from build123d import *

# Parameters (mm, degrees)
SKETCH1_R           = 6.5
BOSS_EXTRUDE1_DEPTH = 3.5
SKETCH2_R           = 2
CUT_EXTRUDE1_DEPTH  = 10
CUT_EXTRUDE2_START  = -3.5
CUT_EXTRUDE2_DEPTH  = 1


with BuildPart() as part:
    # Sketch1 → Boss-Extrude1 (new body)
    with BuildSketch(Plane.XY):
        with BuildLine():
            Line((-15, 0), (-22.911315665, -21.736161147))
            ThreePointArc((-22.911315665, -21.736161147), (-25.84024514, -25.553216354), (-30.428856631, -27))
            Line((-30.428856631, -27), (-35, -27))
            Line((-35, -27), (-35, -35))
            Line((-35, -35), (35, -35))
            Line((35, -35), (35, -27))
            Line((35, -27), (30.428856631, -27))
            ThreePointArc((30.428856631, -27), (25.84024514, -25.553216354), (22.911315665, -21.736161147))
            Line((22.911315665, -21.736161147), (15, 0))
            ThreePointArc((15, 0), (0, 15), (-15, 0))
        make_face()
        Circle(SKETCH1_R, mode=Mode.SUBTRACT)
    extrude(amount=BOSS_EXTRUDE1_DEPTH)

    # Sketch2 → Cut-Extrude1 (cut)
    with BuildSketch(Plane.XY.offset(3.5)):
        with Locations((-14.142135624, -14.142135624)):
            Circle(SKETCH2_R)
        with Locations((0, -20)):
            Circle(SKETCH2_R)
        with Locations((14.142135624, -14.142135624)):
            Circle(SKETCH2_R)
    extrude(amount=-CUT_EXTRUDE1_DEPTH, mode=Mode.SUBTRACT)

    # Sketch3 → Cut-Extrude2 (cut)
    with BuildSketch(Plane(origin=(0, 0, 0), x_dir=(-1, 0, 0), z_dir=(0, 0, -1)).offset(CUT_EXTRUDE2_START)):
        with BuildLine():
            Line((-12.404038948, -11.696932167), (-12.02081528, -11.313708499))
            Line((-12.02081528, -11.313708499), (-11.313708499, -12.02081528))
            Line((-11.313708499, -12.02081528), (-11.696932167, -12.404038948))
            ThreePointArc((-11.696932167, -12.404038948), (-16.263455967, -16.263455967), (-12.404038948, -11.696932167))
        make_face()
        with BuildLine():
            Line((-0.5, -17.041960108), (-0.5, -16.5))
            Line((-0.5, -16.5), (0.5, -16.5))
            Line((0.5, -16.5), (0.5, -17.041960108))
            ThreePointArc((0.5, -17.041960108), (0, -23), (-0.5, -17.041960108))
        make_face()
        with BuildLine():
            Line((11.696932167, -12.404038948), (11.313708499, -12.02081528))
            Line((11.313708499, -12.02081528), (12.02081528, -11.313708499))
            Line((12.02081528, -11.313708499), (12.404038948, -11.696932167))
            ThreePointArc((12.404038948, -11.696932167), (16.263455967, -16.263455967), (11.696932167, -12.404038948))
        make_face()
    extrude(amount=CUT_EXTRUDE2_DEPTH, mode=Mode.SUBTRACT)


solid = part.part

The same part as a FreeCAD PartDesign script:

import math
import FreeCAD as App
import Part
import Sketcher
from FreeCAD import Vector
Q = App.Units.Quantity

doc = App.newDocument("Part")
body = doc.addObject("PartDesign::Body", "Body")

# Sketch on XY plane
sketch1 = doc.addObject("Sketcher::SketchObject", "Sketch")
body.addObject(sketch1)
sketch1.AttachmentSupport = (doc.XY_Plane, [""])
sketch1.MapMode = "FlatFace"
sketch1.addGeometry(Part.LineSegment(Vector(-15, 0, 0), Vector(-22.9, -21.7, 0)), False)
sketch1.addGeometry(Part.ArcOfCircle(Part.Circle(Vector(-30.4, -19, 0), Vector(0, 0, 1), 8), math.radians(-90), math.radians(-20)), False)
sketch1.addGeometry(Part.LineSegment(Vector(-30.4, -27, 0), Vector(-35, -27, 0)), False)
sketch1.addGeometry(Part.LineSegment(Vector(-35, -27, 0), Vector(-35, -35, 0)), False)
sketch1.addGeometry(Part.LineSegment(Vector(-35, -35, 0), Vector(35, -35, 0)), False)
sketch1.addGeometry(Part.LineSegment(Vector(35, -35, 0), Vector(35, -27, 0)), False)
sketch1.addGeometry(Part.LineSegment(Vector(35, -27, 0), Vector(30.4, -27, 0)), False)
sketch1.addGeometry(Part.ArcOfCircle(Part.Circle(Vector(30.4, -19, 0), Vector(0, 0, 1), 8), math.radians(-160), math.radians(-90)), False)
sketch1.addGeometry(Part.LineSegment(Vector(22.9, -21.7, 0), Vector(15, 0, 0)), False)
sketch1.addGeometry(Part.ArcOfCircle(Part.Circle(Vector(0, 0, 0), Vector(0, 0, 1), 15), math.radians(0), math.radians(180)), False)
sketch1.addGeometry(Part.Circle(Vector(0, 0, 0), Vector(0, 0, 1), 6.5), False)
sketch1.addConstraint(Sketcher.Constraint("Tangent", 0, 2, 1, 2))
sketch1.addConstraint(Sketcher.Constraint("Tangent", 1, 1, 2, 1))
sketch1.addConstraint(Sketcher.Constraint("Coincident", 2, 2, 3, 1))
sketch1.addConstraint(Sketcher.Constraint("Coincident", 3, 2, 4, 1))
sketch1.addConstraint(Sketcher.Constraint("Coincident", 4, 2, 5, 1))
sketch1.addConstraint(Sketcher.Constraint("Coincident", 5, 2, 6, 1))
sketch1.addConstraint(Sketcher.Constraint("Tangent", 6, 2, 7, 2))
sketch1.addConstraint(Sketcher.Constraint("Tangent", 7, 1, 8, 1))
sketch1.addConstraint(Sketcher.Constraint("Coincident", 8, 2, 9, 1))
sketch1.addConstraint(Sketcher.Constraint("Coincident", 9, 2, 0, 1))
sketch1.addConstraint(Sketcher.Constraint("Horizontal", 2))
sketch1.addConstraint(Sketcher.Constraint("Vertical", 3))
sketch1.addConstraint(Sketcher.Constraint("Horizontal", 4))
sketch1.addConstraint(Sketcher.Constraint("Vertical", 5))
sketch1.addConstraint(Sketcher.Constraint("Horizontal", 6))
sketch1.addConstraint(Sketcher.Constraint("Coincident", 9, 3, -1, 1))
sketch1.addConstraint(Sketcher.Constraint("Coincident", 10, 3, -1, 1))
sketch1.addConstraint(Sketcher.Constraint("Equal", 1, 7))
sketch1.addConstraint(Sketcher.Constraint("Symmetric", 1, 3, 7, 3, -2))
sketch1.addConstraint(Sketcher.Constraint("PointOnObject", 8, 2, -1))
sketch1.addConstraint(Sketcher.Constraint("PointOnObject", 9, 2, -1))
sketch1.addConstraint(Sketcher.Constraint("Equal", 2, 6))
sketch1.addConstraint(Sketcher.Constraint("Diameter", 10, Q("13 mm")))
sketch1.addConstraint(Sketcher.Constraint("Radius", 1, Q("8 mm")))
sketch1.addConstraint(Sketcher.Constraint("Radius", 9, Q("15 mm")))
sketch1.addConstraint(Sketcher.Constraint("DistanceX", 4, 1, 4, 2, Q("70 mm")))
sketch1.addConstraint(Sketcher.Constraint("DistanceY", 3, 2, 3, 1, Q("8 mm")))
sketch1.addConstraint(Sketcher.Constraint("Angle", 0, Q("-110 deg")))
sketch1.addConstraint(Sketcher.Constraint("DistanceY", 1, 3, -1, 1, Q("19 mm")))
pad1 = doc.addObject("PartDesign::Pad", "Pad")
body.addObject(pad1)
pad1.Profile = sketch1
pad1.Length = 3.5

# Sketch on XY plane
sketch2 = doc.addObject("Sketcher::SketchObject", "Sketch001")
body.addObject(sketch2)
sketch2.AttachmentSupport = (doc.XY_Plane, [""])
sketch2.MapMode = "FlatFace"
sketch2.AttachmentOffset = App.Placement(Vector(0, 0, 3.5), App.Rotation())
sketch2.addGeometry(Part.Circle(Vector(-14.1, -14.1, 0), Vector(0, 0, 1), 2), False)
sketch2.addGeometry(Part.Circle(Vector(0, -20, 0), Vector(0, 0, 1), 2), False)
sketch2.addGeometry(Part.Circle(Vector(14.1, -14.1, 0), Vector(0, 0, 1), 2), False)
sketch2.addConstraint(Sketcher.Constraint("Equal", 0, 1))
sketch2.addConstraint(Sketcher.Constraint("Equal", 1, 2))
sketch2.addConstraint(Sketcher.Constraint("Symmetric", 0, 3, 2, 3, -2))
sketch2.addConstraint(Sketcher.Constraint("PointOnObject", 1, 3, -2))
sketch2.addConstraint(Sketcher.Constraint("Diameter", 0, Q("4 mm")))
sketch2.addConstraint(Sketcher.Constraint("DistanceY", 1, 3, -1, 1, Q("20 mm")))
sketch2.addConstraint(Sketcher.Constraint("DistanceX", 0, 3, 2, 3, Q("28.284271 mm")))
sketch2.addConstraint(Sketcher.Constraint("DistanceY", 0, 3, -1, 1, Q("14.142136 mm")))
pocket1 = doc.addObject("PartDesign::Pocket", "Pocket")
body.addObject(pocket1)
pocket1.Profile = sketch2
pocket1.Length = 10

# Sketch on XY plane
sketch3 = doc.addObject("Sketcher::SketchObject", "Sketch002")
body.addObject(sketch3)
sketch3.AttachmentSupport = (doc.XY_Plane, [""])
sketch3.MapMode = "FlatFace"
sketch3.AttachmentOffset = App.Placement(Vector(0, 0, 3.5), App.Rotation())
sketch3.addGeometry(Part.LineSegment(Vector(12, -11.3, 0), Vector(12.4, -11.7, 0)), False)
sketch3.addGeometry(Part.ArcOfCircle(Part.Circle(Vector(14.1, -14.1, 0), Vector(0, 0, 1), 3), math.radians(145), math.radians(485)), False)
sketch3.addGeometry(Part.LineSegment(Vector(11.7, -12.4, 0), Vector(11.3, -12, 0)), False)
sketch3.addGeometry(Part.LineSegment(Vector(11.3, -12, 0), Vector(12, -11.3, 0)), False)
sketch3.addGeometry(Part.LineSegment(Vector(0.5, -16.5, 0), Vector(0.5, -17, 0)), False)
sketch3.addGeometry(Part.ArcOfCircle(Part.Circle(Vector(0, -20, 0), Vector(0, 0, 1), 3), math.radians(100), math.radians(440)), False)
sketch3.addGeometry(Part.LineSegment(Vector(-0.5, -17, 0), Vector(-0.5, -16.5, 0)), False)
sketch3.addGeometry(Part.LineSegment(Vector(-0.5, -16.5, 0), Vector(0.5, -16.5, 0)), False)
sketch3.addGeometry(Part.LineSegment(Vector(-11.3, -12, 0), Vector(-11.7, -12.4, 0)), False)
sketch3.addGeometry(Part.ArcOfCircle(Part.Circle(Vector(-14.1, -14.1, 0), Vector(0, 0, 1), 3), math.radians(55), math.radians(395)), False)
sketch3.addGeometry(Part.LineSegment(Vector(-12.4, -11.7, 0), Vector(-12, -11.3, 0)), False)
sketch3.addGeometry(Part.LineSegment(Vector(-12, -11.3, 0), Vector(-11.3, -12, 0)), False)
sketch3.addConstraint(Sketcher.Constraint("Coincident", 0, 2, 1, 2))
sketch3.addConstraint(Sketcher.Constraint("Coincident", 1, 1, 2, 1))
sketch3.addConstraint(Sketcher.Constraint("Coincident", 2, 2, 3, 1))
sketch3.addConstraint(Sketcher.Constraint("Coincident", 3, 2, 0, 1))
sketch3.addConstraint(Sketcher.Constraint("Coincident", 4, 2, 5, 2))
sketch3.addConstraint(Sketcher.Constraint("Coincident", 5, 1, 6, 1))
sketch3.addConstraint(Sketcher.Constraint("Coincident", 6, 2, 7, 1))
sketch3.addConstraint(Sketcher.Constraint("Coincident", 7, 2, 4, 1))
sketch3.addConstraint(Sketcher.Constraint("Coincident", 8, 2, 9, 2))
sketch3.addConstraint(Sketcher.Constraint("Coincident", 9, 1, 10, 1))
sketch3.addConstraint(Sketcher.Constraint("Coincident", 10, 2, 11, 1))
sketch3.addConstraint(Sketcher.Constraint("Coincident", 11, 2, 8, 1))
sketch3.addConstraint(Sketcher.Constraint("Vertical", 4))
sketch3.addConstraint(Sketcher.Constraint("Vertical", 6))
sketch3.addConstraint(Sketcher.Constraint("Horizontal", 7))
sketch3.addConstraint(Sketcher.Constraint("Equal", 1, 5))
sketch3.addConstraint(Sketcher.Constraint("Equal", 5, 9))
sketch3.addConstraint(Sketcher.Constraint("Symmetric", 1, 3, 9, 3, -2))
sketch3.addConstraint(Sketcher.Constraint("Symmetric", 4, 2, 5, 1, -2))
sketch3.addConstraint(Sketcher.Constraint("Symmetric", 3, 2, 10, 2, -2))
sketch3.addConstraint(Sketcher.Constraint("Symmetric", 2, 2, 11, 2, -2))
sketch3.addConstraint(Sketcher.Constraint("Parallel", 0, 2))
sketch3.addConstraint(Sketcher.Constraint("Perpendicular", 2, 3))
sketch3.addConstraint(Sketcher.Constraint("Parallel", 3, 8))
sketch3.addConstraint(Sketcher.Constraint("Parallel", 8, 10))
sketch3.addConstraint(Sketcher.Constraint("Perpendicular", 10, 11))
sketch3.addConstraint(Sketcher.Constraint("Equal", 0, 2))
sketch3.addConstraint(Sketcher.Constraint("Radius", 1, Q("3 mm")))
sketch3.addConstraint(Sketcher.Constraint("DistanceX", 7, 1, 7, 2, Q("1 mm")))
sketch3.addConstraint(Sketcher.Constraint("Distance", 3, Q("1 mm")))
sketch3.addConstraint(Sketcher.Constraint("DistanceY", 5, 3, -1, 1, Q("20 mm")))
sketch3.addConstraint(Sketcher.Constraint("DistanceY", 6, 2, -1, 1, Q("16.5 mm")))
sketch3.addConstraint(Sketcher.Constraint("Distance", 0, Q("0.54196 mm")))
sketch3.addConstraint(Sketcher.Constraint("DistanceX", -1, 1, 0, 2, Q("12.404039 mm")))
sketch3.addConstraint(Sketcher.Constraint("DistanceY", 1, 1, -1, 1, Q("12.404039 mm")))
pocket2 = doc.addObject("PartDesign::Pocket", "Pocket001")
body.addObject(pocket2)
pocket2.Profile = sketch3
pocket2.Length = 1

doc.recompute()
